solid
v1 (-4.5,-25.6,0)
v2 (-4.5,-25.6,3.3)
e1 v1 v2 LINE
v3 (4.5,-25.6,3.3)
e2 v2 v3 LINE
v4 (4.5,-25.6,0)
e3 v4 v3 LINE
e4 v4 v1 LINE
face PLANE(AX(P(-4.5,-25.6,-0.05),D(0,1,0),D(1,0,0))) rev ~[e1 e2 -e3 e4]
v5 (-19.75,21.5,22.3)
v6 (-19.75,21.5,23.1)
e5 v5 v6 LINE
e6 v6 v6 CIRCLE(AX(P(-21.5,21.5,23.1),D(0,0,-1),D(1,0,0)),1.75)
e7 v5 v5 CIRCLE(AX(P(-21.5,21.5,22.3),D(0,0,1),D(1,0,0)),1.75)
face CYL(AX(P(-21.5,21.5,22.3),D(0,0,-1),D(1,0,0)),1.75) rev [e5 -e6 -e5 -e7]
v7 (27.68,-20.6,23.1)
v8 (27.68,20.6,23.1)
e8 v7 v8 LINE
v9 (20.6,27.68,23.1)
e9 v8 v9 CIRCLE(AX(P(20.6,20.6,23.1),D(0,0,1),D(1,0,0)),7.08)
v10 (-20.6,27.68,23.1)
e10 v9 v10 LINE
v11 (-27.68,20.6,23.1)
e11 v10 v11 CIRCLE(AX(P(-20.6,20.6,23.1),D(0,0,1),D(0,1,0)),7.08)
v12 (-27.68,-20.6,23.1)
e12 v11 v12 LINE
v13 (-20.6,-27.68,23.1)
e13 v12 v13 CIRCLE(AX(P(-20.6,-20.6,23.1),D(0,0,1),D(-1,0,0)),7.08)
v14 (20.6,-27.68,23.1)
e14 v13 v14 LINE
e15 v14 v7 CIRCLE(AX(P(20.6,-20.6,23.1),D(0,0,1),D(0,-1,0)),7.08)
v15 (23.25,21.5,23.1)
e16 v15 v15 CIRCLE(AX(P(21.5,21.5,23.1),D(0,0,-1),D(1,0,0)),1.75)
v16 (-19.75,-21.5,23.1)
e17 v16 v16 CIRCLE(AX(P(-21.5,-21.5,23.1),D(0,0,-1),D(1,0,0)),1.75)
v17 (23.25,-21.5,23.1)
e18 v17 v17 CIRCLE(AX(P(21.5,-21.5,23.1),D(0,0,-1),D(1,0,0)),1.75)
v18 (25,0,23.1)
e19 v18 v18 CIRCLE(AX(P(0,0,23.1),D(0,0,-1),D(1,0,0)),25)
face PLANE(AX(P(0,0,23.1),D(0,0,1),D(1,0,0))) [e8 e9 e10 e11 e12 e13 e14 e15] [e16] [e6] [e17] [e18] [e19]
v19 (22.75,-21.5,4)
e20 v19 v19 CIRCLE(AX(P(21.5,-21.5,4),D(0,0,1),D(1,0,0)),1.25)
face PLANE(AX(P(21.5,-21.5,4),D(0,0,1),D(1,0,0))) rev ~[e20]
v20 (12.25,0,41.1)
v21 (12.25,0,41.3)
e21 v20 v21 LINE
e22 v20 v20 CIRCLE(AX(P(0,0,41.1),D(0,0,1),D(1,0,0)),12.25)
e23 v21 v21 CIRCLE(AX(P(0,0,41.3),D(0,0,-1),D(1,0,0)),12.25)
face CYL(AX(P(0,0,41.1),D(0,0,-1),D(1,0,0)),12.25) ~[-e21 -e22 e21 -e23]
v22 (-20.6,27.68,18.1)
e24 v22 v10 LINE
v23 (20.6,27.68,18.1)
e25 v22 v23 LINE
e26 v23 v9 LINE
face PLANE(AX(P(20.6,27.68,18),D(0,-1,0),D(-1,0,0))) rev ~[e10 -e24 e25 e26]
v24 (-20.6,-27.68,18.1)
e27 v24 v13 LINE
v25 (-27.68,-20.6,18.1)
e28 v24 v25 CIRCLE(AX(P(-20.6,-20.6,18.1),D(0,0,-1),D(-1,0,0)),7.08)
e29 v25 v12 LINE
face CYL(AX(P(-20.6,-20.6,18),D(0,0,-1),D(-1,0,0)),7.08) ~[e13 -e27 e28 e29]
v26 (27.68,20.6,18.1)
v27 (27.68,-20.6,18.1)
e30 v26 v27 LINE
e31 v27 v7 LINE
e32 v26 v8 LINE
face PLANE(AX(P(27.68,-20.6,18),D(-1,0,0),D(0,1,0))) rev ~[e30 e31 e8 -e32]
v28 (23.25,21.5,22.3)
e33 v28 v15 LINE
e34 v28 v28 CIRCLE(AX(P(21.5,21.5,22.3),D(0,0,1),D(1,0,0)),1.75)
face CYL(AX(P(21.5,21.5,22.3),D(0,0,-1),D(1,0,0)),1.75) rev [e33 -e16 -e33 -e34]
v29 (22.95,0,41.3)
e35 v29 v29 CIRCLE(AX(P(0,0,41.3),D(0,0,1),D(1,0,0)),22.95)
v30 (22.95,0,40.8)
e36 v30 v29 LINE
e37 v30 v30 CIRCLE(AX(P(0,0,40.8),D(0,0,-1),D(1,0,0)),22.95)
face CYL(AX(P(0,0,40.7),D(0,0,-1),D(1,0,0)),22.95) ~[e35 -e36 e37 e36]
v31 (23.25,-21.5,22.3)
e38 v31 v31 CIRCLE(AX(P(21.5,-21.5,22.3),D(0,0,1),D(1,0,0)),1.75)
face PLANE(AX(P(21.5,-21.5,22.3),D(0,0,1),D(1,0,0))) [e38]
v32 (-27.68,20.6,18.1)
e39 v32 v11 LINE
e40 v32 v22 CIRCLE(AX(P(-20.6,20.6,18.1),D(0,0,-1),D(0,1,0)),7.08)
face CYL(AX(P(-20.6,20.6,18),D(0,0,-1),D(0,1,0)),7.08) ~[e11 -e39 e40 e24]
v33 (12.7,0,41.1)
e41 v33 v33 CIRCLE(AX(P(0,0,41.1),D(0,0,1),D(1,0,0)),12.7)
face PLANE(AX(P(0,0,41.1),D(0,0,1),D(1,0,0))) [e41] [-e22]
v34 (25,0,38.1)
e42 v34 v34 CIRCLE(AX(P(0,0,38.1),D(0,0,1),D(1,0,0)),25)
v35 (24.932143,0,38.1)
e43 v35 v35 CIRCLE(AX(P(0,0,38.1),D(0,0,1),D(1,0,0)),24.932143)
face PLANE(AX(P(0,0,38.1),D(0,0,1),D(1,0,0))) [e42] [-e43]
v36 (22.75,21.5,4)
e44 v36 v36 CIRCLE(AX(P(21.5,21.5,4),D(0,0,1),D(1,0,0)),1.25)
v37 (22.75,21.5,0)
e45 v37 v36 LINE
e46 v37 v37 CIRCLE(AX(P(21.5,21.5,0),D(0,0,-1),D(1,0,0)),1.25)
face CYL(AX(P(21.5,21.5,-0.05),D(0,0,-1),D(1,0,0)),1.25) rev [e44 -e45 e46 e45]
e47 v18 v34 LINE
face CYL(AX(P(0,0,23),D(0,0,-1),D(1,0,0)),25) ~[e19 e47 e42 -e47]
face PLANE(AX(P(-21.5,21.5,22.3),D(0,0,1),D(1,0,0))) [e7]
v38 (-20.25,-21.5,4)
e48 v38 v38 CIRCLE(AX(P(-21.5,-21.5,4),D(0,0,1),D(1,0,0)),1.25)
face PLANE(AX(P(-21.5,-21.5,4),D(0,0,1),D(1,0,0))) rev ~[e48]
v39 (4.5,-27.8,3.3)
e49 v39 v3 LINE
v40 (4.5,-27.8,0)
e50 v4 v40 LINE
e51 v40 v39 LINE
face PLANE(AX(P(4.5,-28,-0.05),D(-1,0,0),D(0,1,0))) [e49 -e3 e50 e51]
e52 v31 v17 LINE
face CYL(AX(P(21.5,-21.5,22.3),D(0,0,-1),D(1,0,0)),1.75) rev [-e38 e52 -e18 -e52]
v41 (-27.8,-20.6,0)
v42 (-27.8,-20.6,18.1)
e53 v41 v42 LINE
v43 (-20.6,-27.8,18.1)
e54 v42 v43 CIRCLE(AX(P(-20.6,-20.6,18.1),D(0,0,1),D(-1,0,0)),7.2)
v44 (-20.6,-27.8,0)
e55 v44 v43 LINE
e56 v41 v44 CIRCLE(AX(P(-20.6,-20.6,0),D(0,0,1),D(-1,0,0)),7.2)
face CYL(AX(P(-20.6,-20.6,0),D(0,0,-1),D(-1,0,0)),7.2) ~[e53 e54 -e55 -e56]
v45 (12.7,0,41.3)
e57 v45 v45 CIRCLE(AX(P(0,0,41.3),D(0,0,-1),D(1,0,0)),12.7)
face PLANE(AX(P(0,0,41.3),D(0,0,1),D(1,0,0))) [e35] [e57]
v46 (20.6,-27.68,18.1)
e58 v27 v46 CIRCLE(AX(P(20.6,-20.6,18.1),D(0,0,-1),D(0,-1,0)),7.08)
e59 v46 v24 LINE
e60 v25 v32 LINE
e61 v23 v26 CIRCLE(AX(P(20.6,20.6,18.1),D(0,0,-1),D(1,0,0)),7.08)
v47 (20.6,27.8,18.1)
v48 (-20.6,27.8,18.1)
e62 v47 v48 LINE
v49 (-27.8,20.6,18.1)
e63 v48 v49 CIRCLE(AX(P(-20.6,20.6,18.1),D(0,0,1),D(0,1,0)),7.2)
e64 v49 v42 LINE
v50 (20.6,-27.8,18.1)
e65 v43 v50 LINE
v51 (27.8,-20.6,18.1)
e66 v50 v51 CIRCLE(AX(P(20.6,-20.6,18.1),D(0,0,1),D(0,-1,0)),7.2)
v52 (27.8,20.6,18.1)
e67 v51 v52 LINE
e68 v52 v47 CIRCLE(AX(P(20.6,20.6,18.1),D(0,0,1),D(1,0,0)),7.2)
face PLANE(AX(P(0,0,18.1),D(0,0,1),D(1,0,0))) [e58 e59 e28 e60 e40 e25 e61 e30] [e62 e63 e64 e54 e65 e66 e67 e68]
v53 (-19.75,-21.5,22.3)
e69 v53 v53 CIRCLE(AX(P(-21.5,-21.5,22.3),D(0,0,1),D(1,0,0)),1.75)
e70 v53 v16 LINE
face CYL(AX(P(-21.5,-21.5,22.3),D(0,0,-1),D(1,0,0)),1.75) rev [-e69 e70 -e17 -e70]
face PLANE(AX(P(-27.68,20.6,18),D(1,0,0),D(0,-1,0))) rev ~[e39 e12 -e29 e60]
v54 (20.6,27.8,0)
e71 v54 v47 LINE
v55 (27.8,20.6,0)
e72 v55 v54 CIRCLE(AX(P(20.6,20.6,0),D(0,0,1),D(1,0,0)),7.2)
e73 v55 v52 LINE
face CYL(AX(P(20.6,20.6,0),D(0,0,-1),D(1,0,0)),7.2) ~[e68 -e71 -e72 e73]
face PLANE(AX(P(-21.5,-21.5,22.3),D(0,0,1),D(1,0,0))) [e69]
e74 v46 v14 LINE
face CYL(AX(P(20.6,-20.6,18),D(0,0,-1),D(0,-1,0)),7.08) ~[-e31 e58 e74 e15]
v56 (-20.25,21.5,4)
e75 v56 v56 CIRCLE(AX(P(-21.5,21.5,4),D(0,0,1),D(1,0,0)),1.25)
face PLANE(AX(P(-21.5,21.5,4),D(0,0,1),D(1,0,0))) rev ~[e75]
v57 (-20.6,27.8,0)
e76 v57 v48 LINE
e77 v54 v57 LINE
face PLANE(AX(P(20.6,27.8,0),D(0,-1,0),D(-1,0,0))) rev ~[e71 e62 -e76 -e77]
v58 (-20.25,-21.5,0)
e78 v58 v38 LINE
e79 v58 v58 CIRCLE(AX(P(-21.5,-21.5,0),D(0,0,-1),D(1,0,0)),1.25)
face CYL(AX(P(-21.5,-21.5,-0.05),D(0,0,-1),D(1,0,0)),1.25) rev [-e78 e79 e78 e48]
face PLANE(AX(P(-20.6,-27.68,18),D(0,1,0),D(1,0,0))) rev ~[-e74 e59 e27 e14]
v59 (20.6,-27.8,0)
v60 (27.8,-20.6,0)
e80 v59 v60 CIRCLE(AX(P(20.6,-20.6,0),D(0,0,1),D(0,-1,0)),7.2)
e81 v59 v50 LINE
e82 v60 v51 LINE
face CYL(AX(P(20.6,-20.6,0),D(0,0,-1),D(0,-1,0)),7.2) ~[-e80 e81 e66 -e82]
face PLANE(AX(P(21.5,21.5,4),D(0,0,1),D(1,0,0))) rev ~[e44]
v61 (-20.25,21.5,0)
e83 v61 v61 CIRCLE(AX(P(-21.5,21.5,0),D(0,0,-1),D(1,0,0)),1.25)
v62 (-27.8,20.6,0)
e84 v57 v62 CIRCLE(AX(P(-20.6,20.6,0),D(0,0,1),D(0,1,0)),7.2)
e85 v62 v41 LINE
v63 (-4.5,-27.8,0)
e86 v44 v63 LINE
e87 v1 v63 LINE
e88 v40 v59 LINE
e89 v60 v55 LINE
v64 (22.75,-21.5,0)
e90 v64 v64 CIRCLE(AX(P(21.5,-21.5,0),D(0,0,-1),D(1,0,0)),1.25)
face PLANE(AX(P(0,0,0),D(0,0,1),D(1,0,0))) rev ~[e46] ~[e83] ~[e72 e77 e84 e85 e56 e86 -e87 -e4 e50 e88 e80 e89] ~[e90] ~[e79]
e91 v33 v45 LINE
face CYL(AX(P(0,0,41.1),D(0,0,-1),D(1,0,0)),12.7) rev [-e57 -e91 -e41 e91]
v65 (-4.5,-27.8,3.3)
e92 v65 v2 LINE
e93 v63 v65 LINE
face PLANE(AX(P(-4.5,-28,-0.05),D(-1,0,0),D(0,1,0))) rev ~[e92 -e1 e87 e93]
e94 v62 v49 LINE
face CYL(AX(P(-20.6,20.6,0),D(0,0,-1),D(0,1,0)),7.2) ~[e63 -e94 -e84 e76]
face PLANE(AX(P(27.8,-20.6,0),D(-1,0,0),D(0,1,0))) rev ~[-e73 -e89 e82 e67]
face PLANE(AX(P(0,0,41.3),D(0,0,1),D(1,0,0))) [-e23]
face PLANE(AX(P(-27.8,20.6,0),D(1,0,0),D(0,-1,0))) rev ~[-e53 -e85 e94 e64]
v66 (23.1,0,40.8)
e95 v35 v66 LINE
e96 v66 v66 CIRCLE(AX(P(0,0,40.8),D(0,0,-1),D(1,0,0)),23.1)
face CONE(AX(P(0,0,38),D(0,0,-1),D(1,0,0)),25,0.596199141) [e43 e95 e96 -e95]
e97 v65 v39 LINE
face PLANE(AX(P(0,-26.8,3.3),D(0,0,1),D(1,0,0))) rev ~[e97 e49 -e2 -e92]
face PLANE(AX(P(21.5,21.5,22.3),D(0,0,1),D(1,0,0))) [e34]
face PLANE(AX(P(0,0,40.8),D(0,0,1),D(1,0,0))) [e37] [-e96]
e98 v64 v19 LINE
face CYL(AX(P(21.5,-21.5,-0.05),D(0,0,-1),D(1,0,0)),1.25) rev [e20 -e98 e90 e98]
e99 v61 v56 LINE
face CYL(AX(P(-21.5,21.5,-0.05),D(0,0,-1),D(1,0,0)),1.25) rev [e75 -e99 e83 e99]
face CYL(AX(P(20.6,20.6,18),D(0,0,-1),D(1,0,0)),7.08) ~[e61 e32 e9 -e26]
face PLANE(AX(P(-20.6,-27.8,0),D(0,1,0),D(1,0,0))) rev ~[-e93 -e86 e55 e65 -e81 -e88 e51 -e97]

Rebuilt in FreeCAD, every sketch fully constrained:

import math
import FreeCAD as App
import Part
import Sketcher

V = App.Vector


def add_polygon(sketch, points):
    """Adds a closed chain of lines whose ends are joined by coincident constraints."""
    first, n = sketch.GeometryCount, len(points)
    for a, b in zip(points, points[1:] + points[:1]):
        sketch.addGeometry(Part.LineSegment(App.Vector(*a, 0), App.Vector(*b, 0)), False)
    for i in range(n):
        sketch.addConstraint(Sketcher.Constraint("Coincident", first + i, 2, first + (i + 1) % n, 1))

doc = App.newDocument("Part")
body = doc.addObject("PartDesign::Body", "Body")

# Sketch on XY plane
sketch1 = body.newObject("Sketcher::SketchObject", "Sketch")
sketch1.AttachmentSupport = (doc.getObject("XY_Plane"), [""])
sketch1.MapMode = "FlatFace"
sketch1.addGeometry(Part.LineSegment(V(-21, -28, 0), V(21, -28, 0)), False)
sketch1.addGeometry(Part.ArcOfCircle(Part.Circle(V(21, -21, 0), V(0, 0, 1), 7), math.radians(-90), math.radians(0)), False)
sketch1.addGeometry(Part.LineSegment(V(28, -21, 0), V(28, 21, 0)), False)
sketch1.addGeometry(Part.ArcOfCircle(Part.Circle(V(21, 21, 0), V(0, 0, 1), 7), math.radians(0), math.radians(90)), False)
sketch1.addGeometry(Part.LineSegment(V(21, 28, 0), V(-21, 28, 0)), False)
sketch1.addGeometry(Part.ArcOfCircle(Part.Circle(V(-21, 21, 0), V(0, 0, 1), 7), math.radians(90), math.radians(180)), False)
sketch1.addGeometry(Part.LineSegment(V(-28, 21, 0), V(-28, -21, 0)), False)
sketch1.addGeometry(Part.ArcOfCircle(Part.Circle(V(-21, -21, 0), V(0, 0, 1), 7), math.radians(180), math.radians(270)), False)
sketch1.addConstraint(Sketcher.Constraint("Tangent", 0, 2, 1, 1))
sketch1.addConstraint(Sketcher.Constraint("Tangent", 1, 2, 2, 1))
sketch1.addConstraint(Sketcher.Constraint("Tangent", 2, 2, 3, 1))
sketch1.addConstraint(Sketcher.Constraint("Tangent", 3, 2, 4, 1))
sketch1.addConstraint(Sketcher.Constraint("Tangent", 4, 2, 5, 1))
sketch1.addConstraint(Sketcher.Constraint("Tangent", 5, 2, 6, 1))
sketch1.addConstraint(Sketcher.Constraint("Tangent", 6, 2, 7, 1))
sketch1.addConstraint(Sketcher.Constraint("Tangent", 7, 2, 0, 1))
sketch1.addConstraint(Sketcher.Constraint("Horizontal", 0))
sketch1.addConstraint(Sketcher.Constraint("Vertical", 2))
sketch1.addConstraint(Sketcher.Constraint("Horizontal", 4))
sketch1.addConstraint(Sketcher.Constraint("Vertical", 6))
sketch1.addConstraint(Sketcher.Constraint("Equal", 1, 3))
sketch1.addConstraint(Sketcher.Constraint("Equal", 3, 5))
sketch1.addConstraint(Sketcher.Constraint("Equal", 5, 7))
sketch1.addConstraint(Sketcher.Constraint("Symmetric", 1, 3, 5, 3, -1, 1))
sketch1.addConstraint(Sketcher.Constraint("Equal", 4, 2))
sketch1.addConstraint(Sketcher.Constraint("Radius", 1, 7.2))
sketch1.addConstraint(Sketcher.Constraint("DistanceX", 0, 1, 0, 2, 41.2))
pad1 = body.newObject("PartDesign::Pad", "Pad")
pad1.Profile = sketch1
pad1.Length = 18.1

# Sketch on XY plane
sketch2 = body.newObject("Sketcher::SketchObject", "Sketch001")
sketch2.AttachmentSupport = (doc.getObject("XY_Plane"), [""])
sketch2.MapMode = "FlatFace"
sketch2.AttachmentOffset = App.Placement(V(0, 0, 18), App.Rotation())
sketch2.addGeometry(Part.LineSegment(V(-21, -28, 0), V(21, -28, 0)), False)
sketch2.addGeometry(Part.ArcOfCircle(Part.Circle(V(21, -21, 0), V(0, 0, 1), 7), math.radians(-90), math.radians(0)), False)
sketch2.addGeometry(Part.LineSegment(V(28, -21, 0), V(28, 21, 0)), False)
sketch2.addGeometry(Part.ArcOfCircle(Part.Circle(V(21, 21, 0), V(0, 0, 1), 7), math.radians(0), math.radians(90)), False)
sketch2.addGeometry(Part.LineSegment(V(21, 28, 0), V(-21, 28, 0)), False)
sketch2.addGeometry(Part.ArcOfCircle(Part.Circle(V(-21, 21, 0), V(0, 0, 1), 7), math.radians(90), math.radians(180)), False)
sketch2.addGeometry(Part.LineSegment(V(-28, 21, 0), V(-28, -21, 0)), False)
sketch2.addGeometry(Part.ArcOfCircle(Part.Circle(V(-21, -21, 0), V(0, 0, 1), 7), math.radians(180), math.radians(270)), False)
sketch2.addConstraint(Sketcher.Constraint("Tangent", 0, 2, 1, 1))
sketch2.addConstraint(Sketcher.Constraint("Tangent", 1, 2, 2, 1))
sketch2.addConstraint(Sketcher.Constraint("Tangent", 2, 2, 3, 1))
sketch2.addConstraint(Sketcher.Constraint("Tangent", 3, 2, 4, 1))
sketch2.addConstraint(Sketcher.Constraint("Tangent", 4, 2, 5, 1))
sketch2.addConstraint(Sketcher.Constraint("Tangent", 5, 2, 6, 1))
sketch2.addConstraint(Sketcher.Constraint("Tangent", 6, 2, 7, 1))
sketch2.addConstraint(Sketcher.Constraint("Tangent", 7, 2, 0, 1))
sketch2.addConstraint(Sketcher.Constraint("Horizontal", 0))
sketch2.addConstraint(Sketcher.Constraint("Vertical", 2))
sketch2.addConstraint(Sketcher.Constraint("Horizontal", 4))
sketch2.addConstraint(Sketcher.Constraint("Vertical", 6))
sketch2.addConstraint(Sketcher.Constraint("Equal", 1, 3))
sketch2.addConstraint(Sketcher.Constraint("Equal", 3, 5))
sketch2.addConstraint(Sketcher.Constraint("Equal", 5, 7))
sketch2.addConstraint(Sketcher.Constraint("Symmetric", 1, 3, 5, 3, -1, 1))
sketch2.addConstraint(Sketcher.Constraint("Equal", 4, 2))
sketch2.addConstraint(Sketcher.Constraint("Radius", 1, 7.08))
sketch2.addConstraint(Sketcher.Constraint("DistanceX", 0, 1, 0, 2, 41.2))
pad2 = body.newObject("PartDesign::Pad", "Pad001")
pad2.Profile = sketch2
pad2.Length = 5.1

# Sketch on XY plane
sketch3 = body.newObject("Sketcher::SketchObject", "Sketch002")
sketch3.AttachmentSupport = (doc.getObject("XY_Plane"), [""])
sketch3.MapMode = "FlatFace"
sketch3.AttachmentOffset = App.Placement(V(0, 0, 23), App.Rotation())
sketch3.addGeometry(Part.Circle(V(0, 0, 0), V(0, 0, 1), 25), False)
sketch3.addConstraint(Sketcher.Constraint("Coincident", 0, 3, -1, 1))
sketch3.addConstraint(Sketcher.Constraint("Diameter", 0, 50.0))
pad3 = body.newObject("PartDesign::Pad", "Pad002")
pad3.Profile = sketch3
pad3.Length = 15.1

# Sketch on XY plane
sketch4 = body.newObject("Sketcher::SketchObject", "Sketch003")
sketch4.AttachmentSupport = (doc.getObject("XY_Plane"), [""])
sketch4.MapMode = "FlatFace"
sketch4.AttachmentOffset = App.Placement(V(0, 0, 38), App.Rotation())
sketch4.addGeometry(Part.Circle(V(0, 0, 0), V(0, 0, 1), 25), False)
sketch4.addConstraint(Sketcher.Constraint("Coincident", 0, 3, -1, 1))
sketch4.addConstraint(Sketcher.Constraint("Diameter", 0, 50.0))
pad4 = body.newObject("PartDesign::Pad", "Pad003")
pad4.Profile = sketch4
pad4.Length = 2.8
pad4.TaperAngle = -34.159695

# Sketch on XY plane
sketch5 = body.newObject("Sketcher::SketchObject", "Sketch004")
sketch5.AttachmentSupport = (doc.getObject("XY_Plane"), [""])
sketch5.MapMode = "FlatFace"
sketch5.AttachmentOffset = App.Placement(V(0, 0, 40.7), App.Rotation())
sketch5.addGeometry(Part.Circle(V(0, 0, 0), V(0, 0, 1), 23), False)
sketch5.addConstraint(Sketcher.Constraint("Coincident", 0, 3, -1, 1))
sketch5.addConstraint(Sketcher.Constraint("Diameter", 0, 45.9))
pad5 = body.newObject("PartDesign::Pad", "Pad004")
pad5.Profile = sketch5
pad5.Length = 0.6

# Sketch on XY plane
sketch6 = body.newObject("Sketcher::SketchObject", "Sketch005")
sketch6.AttachmentSupport = (doc.getObject("XY_Plane"), [""])
sketch6.MapMode = "FlatFace"
sketch6.AttachmentOffset = App.Placement(V(0, 0, -0.05), App.Rotation())
sketch6.addGeometry(Part.Circle(V(-21.5, -21.5, 0), V(0, 0, 1), 1.2), False)
sketch6.addGeometry(Part.Circle(V(-21.5, 21.5, 0), V(0, 0, 1), 1.2), False)
sketch6.addGeometry(Part.Circle(V(21.5, -21.5, 0), V(0, 0, 1), 1.2), False)
sketch6.addGeometry(Part.Circle(V(21.5, 21.5, 0), V(0, 0, 1), 1.2), False)
sketch6.addConstraint(Sketcher.Constraint("Equal", 0, 1))
sketch6.addConstraint(Sketcher.Constraint("Equal", 1, 2))
sketch6.addConstraint(Sketcher.Constraint("Equal", 2, 3))
sketch6.addConstraint(Sketcher.Constraint("Symmetric", 1, 3, 2, 3, -1, 1))
sketch6.addConstraint(Sketcher.Constraint("Symmetric", 0, 3, 3, 3, -1, 1))
sketch6.addConstraint(Sketcher.Constraint("Symmetric", 0, 3, 2, 3, -2))
sketch6.addConstraint(Sketcher.Constraint("Diameter", 0, 2.5))
sketch6.addConstraint(Sketcher.Constraint("DistanceY", 0, 3, 1, 3, 43.0))
sketch6.addConstraint(Sketcher.Constraint("DistanceX", 0, 3, 2, 3, 43.0))
pocket1 = body.newObject("PartDesign::Pocket", "Pocket")
pocket1.Profile = sketch6
pocket1.Length = 4.05
pocket1.Reversed = True

# Sketch on XY plane
sketch7 = body.newObject("Sketcher::SketchObject", "Sketch006")
sketch7.AttachmentSupport = (doc.getObject("XY_Plane"), [""])
sketch7.MapMode = "FlatFace"
sketch7.AttachmentOffset = App.Placement(V(0, 0, 22.3), App.Rotation())
sketch7.addGeometry(Part.Circle(V(-21.5, -21.5, 0), V(0, 0, 1), 1.8), False)
sketch7.addGeometry(Part.Circle(V(-21.5, 21.5, 0), V(0, 0, 1), 1.8), False)
sketch7.addGeometry(Part.Circle(V(21.5, -21.5, 0), V(0, 0, 1), 1.8), False)
sketch7.addGeometry(Part.Circle(V(21.5, 21.5, 0), V(0, 0, 1), 1.8), False)
sketch7.addConstraint(Sketcher.Constraint("Equal", 0, 1))
sketch7.addConstraint(Sketcher.Constraint("Equal", 1, 2))
sketch7.addConstraint(Sketcher.Constraint("Equal", 2, 3))
sketch7.addConstraint(Sketcher.Constraint("Symmetric", 1, 3, 2, 3, -1, 1))
sketch7.addConstraint(Sketcher.Constraint("Symmetric", 0, 3, 3, 3, -1, 1))
sketch7.addConstraint(Sketcher.Constraint("Symmetric", 0, 3, 2, 3, -2))
sketch7.addConstraint(Sketcher.Constraint("Diameter", 0, 3.5))
sketch7.addConstraint(Sketcher.Constraint("DistanceY", 0, 3, 1, 3, 43.0))
sketch7.addConstraint(Sketcher.Constraint("DistanceX", 0, 3, 2, 3, 43.0))
pocket2 = body.newObject("PartDesign::Pocket", "Pocket001")
pocket2.Profile = sketch7
pocket2.Length = 1
pocket2.Reversed = True

# Sketch on XY plane
sketch8 = body.newObject("Sketcher::SketchObject", "Sketch007")
sketch8.AttachmentSupport = (doc.getObject("XY_Plane"), [""])
sketch8.MapMode = "FlatFace"
sketch8.AttachmentOffset = App.Placement(V(0, 0, -0.05), App.Rotation())
add_polygon(sketch8, [(-4.5, -25.6), (-4.5, -28), (4.5, -28), (4.5, -25.6)])  # lines 0-3
sketch8.addConstraint(Sketcher.Constraint("Vertical", 0))
sketch8.addConstraint(Sketcher.Constraint("Horizontal", 1))
sketch8.addConstraint(Sketcher.Constraint("Vertical", 2))
sketch8.addConstraint(Sketcher.Constraint("Horizontal", 3))
sketch8.addConstraint(Sketcher.Constraint("DistanceX", 1, 1, 1, 2, 9.0))
sketch8.addConstraint(Sketcher.Constraint("DistanceY", 0, 2, 0, 1, 2.4))
sketch8.addConstraint(Sketcher.Constraint("DistanceY", 0, 2, -1, 1, 28.0))
sketch8.addConstraint(Sketcher.Constraint("DistanceX", 0, 2, -1, 1, 4.5))
pocket3 = body.newObject("PartDesign::Pocket", "Pocket002")
pocket3.Profile = sketch8
pocket3.Length = 3.35
pocket3.Reversed = True

# Sketch on XY plane
sketch9 = body.newObject("Sketcher::SketchObject", "Sketch008")
sketch9.AttachmentSupport = (doc.getObject("XY_Plane"), [""])
sketch9.MapMode = "FlatFace"
sketch9.AttachmentOffset = App.Placement(V(0, 0, 41.1), App.Rotation())
sketch9.addGeometry(Part.Circle(V(0, 0, 0), V(0, 0, 1), 13), False)
sketch9.addGeometry(Part.Circle(V(0, 0, 0), V(0, 0, 1), 12), False)
sketch9.addConstraint(Sketcher.Constraint("Coincident", 0, 3, -1, 1))
sketch9.addConstraint(Sketcher.Constraint("Coincident", 1, 3, -1, 1))
sketch9.addConstraint(Sketcher.Constraint("Diameter", 0, 25.4))
sketch9.addConstraint(Sketcher.Constraint("Diameter", 1, 24.5))
pocket4 = body.newObject("PartDesign::Pocket", "Pocket003")
pocket4.Profile = sketch9
pocket4.Length = 0.4
pocket4.Reversed = True

doc.recompute()
